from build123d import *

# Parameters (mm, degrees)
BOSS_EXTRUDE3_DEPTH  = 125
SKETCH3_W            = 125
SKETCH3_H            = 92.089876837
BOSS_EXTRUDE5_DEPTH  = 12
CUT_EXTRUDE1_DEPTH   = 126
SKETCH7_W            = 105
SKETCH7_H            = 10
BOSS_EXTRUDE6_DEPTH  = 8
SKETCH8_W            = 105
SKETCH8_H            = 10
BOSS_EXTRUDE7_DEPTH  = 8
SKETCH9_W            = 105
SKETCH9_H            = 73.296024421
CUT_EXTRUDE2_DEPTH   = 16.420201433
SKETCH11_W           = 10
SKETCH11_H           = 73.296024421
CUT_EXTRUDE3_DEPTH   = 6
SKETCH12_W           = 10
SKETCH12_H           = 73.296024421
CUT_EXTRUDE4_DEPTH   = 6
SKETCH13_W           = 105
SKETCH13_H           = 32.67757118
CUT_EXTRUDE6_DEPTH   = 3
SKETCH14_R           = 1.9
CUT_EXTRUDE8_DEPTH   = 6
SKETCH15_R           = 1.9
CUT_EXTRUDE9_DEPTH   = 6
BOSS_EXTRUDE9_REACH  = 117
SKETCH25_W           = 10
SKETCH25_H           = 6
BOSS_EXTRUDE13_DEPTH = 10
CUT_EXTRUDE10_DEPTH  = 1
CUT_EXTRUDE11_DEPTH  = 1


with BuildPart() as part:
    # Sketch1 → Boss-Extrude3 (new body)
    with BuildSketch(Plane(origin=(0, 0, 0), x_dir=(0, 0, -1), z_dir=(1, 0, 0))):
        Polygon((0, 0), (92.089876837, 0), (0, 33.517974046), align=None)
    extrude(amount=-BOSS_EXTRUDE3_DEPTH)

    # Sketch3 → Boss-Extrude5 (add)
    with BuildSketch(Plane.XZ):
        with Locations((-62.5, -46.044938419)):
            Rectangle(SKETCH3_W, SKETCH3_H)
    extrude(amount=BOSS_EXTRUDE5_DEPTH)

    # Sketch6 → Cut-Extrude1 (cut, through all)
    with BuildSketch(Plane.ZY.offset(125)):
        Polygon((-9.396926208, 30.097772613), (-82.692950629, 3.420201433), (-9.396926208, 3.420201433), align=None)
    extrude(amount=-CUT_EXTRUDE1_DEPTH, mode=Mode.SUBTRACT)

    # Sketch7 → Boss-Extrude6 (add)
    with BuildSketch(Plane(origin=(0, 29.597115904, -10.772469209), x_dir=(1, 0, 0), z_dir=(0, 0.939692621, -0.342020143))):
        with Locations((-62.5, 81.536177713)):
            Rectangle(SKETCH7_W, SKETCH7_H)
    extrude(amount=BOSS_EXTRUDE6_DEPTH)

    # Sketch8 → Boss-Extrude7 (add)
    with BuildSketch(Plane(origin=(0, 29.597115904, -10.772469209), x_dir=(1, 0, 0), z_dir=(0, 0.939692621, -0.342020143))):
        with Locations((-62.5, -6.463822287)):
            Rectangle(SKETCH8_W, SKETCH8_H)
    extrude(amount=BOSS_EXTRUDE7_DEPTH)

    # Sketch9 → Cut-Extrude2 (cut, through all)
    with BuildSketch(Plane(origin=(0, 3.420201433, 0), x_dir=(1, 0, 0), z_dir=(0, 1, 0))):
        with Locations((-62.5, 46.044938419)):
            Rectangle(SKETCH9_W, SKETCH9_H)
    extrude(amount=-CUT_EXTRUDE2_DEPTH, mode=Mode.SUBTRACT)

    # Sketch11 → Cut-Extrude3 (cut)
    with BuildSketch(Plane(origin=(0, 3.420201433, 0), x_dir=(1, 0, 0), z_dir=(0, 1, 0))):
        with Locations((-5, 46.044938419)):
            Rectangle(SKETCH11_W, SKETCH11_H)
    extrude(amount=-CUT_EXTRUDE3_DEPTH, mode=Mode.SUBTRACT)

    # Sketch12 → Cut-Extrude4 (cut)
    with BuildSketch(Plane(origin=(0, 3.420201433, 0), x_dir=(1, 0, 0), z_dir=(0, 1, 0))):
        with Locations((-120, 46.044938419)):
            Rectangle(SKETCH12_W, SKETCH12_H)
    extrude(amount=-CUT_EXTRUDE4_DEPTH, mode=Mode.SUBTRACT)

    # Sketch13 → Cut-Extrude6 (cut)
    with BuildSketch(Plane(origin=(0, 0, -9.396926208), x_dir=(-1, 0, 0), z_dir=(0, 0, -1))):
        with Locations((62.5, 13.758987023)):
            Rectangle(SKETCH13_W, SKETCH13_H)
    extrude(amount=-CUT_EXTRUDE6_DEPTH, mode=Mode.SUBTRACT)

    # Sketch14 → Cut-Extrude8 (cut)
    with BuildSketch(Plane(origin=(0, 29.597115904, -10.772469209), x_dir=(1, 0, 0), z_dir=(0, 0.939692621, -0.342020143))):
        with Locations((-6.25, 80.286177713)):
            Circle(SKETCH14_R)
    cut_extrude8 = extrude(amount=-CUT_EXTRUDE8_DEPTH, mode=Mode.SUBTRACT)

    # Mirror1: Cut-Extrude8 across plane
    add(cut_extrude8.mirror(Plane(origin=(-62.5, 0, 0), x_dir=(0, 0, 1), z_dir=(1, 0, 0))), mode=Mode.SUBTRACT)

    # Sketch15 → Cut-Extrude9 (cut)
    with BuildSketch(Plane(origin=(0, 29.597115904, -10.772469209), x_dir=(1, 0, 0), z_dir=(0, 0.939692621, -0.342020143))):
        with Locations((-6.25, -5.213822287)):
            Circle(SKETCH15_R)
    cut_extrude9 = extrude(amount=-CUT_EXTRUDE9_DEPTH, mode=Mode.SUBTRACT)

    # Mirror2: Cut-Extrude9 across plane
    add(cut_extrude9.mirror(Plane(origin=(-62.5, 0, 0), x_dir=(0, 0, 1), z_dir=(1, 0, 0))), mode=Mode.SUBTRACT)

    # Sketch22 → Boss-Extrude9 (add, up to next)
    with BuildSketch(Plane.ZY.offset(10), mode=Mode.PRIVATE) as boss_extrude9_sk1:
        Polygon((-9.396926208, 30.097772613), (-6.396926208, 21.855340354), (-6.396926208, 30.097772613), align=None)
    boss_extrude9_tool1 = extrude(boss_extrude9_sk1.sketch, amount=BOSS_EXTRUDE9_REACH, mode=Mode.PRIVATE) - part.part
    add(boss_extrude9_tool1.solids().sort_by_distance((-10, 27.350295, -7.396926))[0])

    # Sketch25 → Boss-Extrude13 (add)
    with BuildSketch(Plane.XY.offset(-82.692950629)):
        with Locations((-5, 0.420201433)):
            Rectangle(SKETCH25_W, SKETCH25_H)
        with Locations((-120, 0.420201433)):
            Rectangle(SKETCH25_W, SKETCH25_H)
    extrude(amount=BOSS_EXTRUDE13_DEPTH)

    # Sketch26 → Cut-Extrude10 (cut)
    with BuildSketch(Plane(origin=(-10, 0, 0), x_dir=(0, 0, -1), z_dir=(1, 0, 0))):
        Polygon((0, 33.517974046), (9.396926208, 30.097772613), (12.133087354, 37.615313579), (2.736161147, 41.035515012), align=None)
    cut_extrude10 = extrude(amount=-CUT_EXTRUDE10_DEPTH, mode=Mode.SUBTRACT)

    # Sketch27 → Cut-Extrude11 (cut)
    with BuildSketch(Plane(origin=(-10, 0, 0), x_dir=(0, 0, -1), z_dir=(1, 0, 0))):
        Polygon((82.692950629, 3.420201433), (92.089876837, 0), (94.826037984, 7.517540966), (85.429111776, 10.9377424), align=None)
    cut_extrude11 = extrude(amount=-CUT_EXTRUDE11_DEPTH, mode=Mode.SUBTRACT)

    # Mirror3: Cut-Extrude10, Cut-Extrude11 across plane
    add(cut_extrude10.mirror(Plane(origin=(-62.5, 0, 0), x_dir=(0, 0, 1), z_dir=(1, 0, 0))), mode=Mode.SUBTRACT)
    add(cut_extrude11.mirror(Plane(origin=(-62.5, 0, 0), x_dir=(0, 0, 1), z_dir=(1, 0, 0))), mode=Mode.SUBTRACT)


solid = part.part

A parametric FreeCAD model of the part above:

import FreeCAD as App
import Part
import Sketcher
from FreeCAD import Vector
Q = App.Units.Quantity

doc = App.newDocument("Part")
params = doc.addObject("Spreadsheet::Sheet", "Params")
for row, (alias, value) in enumerate([
    ("sketch1_length", "98 mm"),
    ("pad1_length", "125 mm"),
    ("sketch2_width", "125 mm"),
    ("pad2_length", "12 mm"),
    ("sketch3_length", "78 mm"),
    ("sketch4_width", "105 mm"),
    ("sketch4_height", "10 mm"),
    ("pad3_length", "8 mm"),
    ("sketch5_width", "105 mm"),
    ("sketch5_height", "10 mm"),
    ("pad4_length", "8 mm"),
    ("sketch6_width", "105 mm"),
    ("sketch7_width", "10 mm"),
    ("pocket3_length", "6 mm"),
    ("sketch8_width", "10 mm"),
    ("pocket4_length", "6 mm"),
    ("sketch9_width", "105 mm"),
    ("pocket5_length", "3 mm"),
    ("sketch10_diameter", "3.8 mm"),
    ("pocket6_length", "6 mm"),
    ("sketch11_diameter", "3.8 mm"),
    ("pocket7_length", "6 mm"),
    ("sketch12_height", "3 mm"),
    ("sketch13_width", "10 mm"),
    ("sketch13_height", "6 mm"),
    ("pad6_length", "10 mm"),
    ("sketch14_length", "10 mm"),
    ("sketch14_length2", "8 mm"),
    ("pocket8_length", "1 mm"),
    ("sketch15_length", "10 mm"),
    ("sketch15_length2", "8 mm"),
    ("pocket9_length", "1 mm"),
], start=1):
    params.set(f"A{row}", alias)
    params.set(f"B{row}", "=" + value)
    params.setAlias(f"B{row}", alias)

body = doc.addObject("PartDesign::Body", "Body")

# Sketch on YZ plane
sketch1 = body.newObject("Sketcher::SketchObject", "Sketch")
sketch1.AttachmentSupport = (doc.getObject("YZ_Plane"), [""])
sketch1.MapMode = "FlatFace"
sketch1.addGeometry([
    Part.LineSegment(Vector(0, 0, 0), Vector(0, -92.089877, 0)),
    Part.LineSegment(Vector(0, -92.089877, 0), Vector(33.517974, 0, 0)),
    Part.LineSegment(Vector(33.517974, 0, 0), Vector(0, 0, 0)),
], False)
sketch1.addConstraint([
    Sketcher.Constraint("Coincident", 0, 2, 1, 1),
    Sketcher.Constraint("Coincident", 1, 2, 2, 1),
    Sketcher.Constraint("Coincident", 2, 2, 0, 1),
    Sketcher.Constraint("Vertical", 0),
    Sketcher.Constraint("Horizontal", 2),
    Sketcher.Constraint("Coincident", 2, 2, -1, 1),
    Sketcher.Constraint("Angle", 1, Q("70 deg")),
    Sketcher.Constraint("Distance", 1, 98.0),
])
sketch1.setExpression("Constraints[7]", "Params.sketch1_length")
pad1 = body.newObject("PartDesign::Pad", "Pad")
pad1.Profile = sketch1
pad1.setExpression("Length", "Params.pad1_length")
pad1.Reversed = True

# Sketch on XZ plane
sketch2 = body.newObject("Sketcher::SketchObject", "Sketch001")
sketch2.AttachmentSupport = (doc.getObject("XZ_Plane"), [""])
sketch2.MapMode = "FlatFace"
sketch2.addGeometry([
    Part.LineSegment(Vector(-125, 0, 0), Vector(-125, -92.089877, 0)),
    Part.LineSegment(Vector(-125, -92.089877, 0), Vector(0, -92.089877, 0)),
    Part.LineSegment(Vector(0, -92.089877, 0), Vector(0, 0, 0)),
    Part.LineSegment(Vector(0, 0, 0), Vector(-125, 0, 0)),
], False)
sketch2.addConstraint([
    Sketcher.Constraint("Coincident", 0, 2, 1, 1),
    Sketcher.Constraint("Coincident", 1, 2, 2, 1),
    Sketcher.Constraint("Coincident", 2, 2, 3, 1),
    Sketcher.Constraint("Coincident", 3, 2, 0, 1),
    Sketcher.Constraint("Vertical", 0),
    Sketcher.Constraint("Horizontal", 1),
    Sketcher.Constraint("Vertical", 2),
    Sketcher.Constraint("Horizontal", 3),
    Sketcher.Constraint("Coincident", 2, 2, -1, 1),
    Sketcher.Constraint("DistanceX", 1, 1, 1, 2, 125.0),
    Sketcher.Constraint("DistanceY", 0, 2, 0, 1, 92.089877),
])
sketch2.setExpression("Constraints[9]", "Params.sketch2_width")
pad2 = body.newObject("PartDesign::Pad", "Pad001")
pad2.Profile = sketch2
pad2.setExpression("Length", "Params.pad2_length")

# Sketch on YZ plane
sketch3 = body.newObject("Sketcher::SketchObject", "Sketch002")
sketch3.AttachmentSupport = (doc.getObject("YZ_Plane"), [""])
sketch3.MapMode = "FlatFace"
sketch3.AttachmentOffset = App.Placement(Vector(0, 0, -125), App.Rotation())
sketch3.addGeometry([
    Part.LineSegment(Vector(30.097773, -9.396926, 0), Vector(3.420201, -82.692951, 0)),
    Part.LineSegment(Vector(3.420201, -82.692951, 0), Vector(3.420201, -9.396926, 0)),
    Part.LineSegment(Vector(3.420201, -9.396926, 0), Vector(30.097773, -9.396926, 0)),
], False)
sketch3.addConstraint([
    Sketcher.Constraint("Coincident", 0, 2, 1, 1),
    Sketcher.Constraint("Coincident", 1, 2, 2, 1),
    Sketcher.Constraint("Coincident", 2, 2, 0, 1),
    Sketcher.Constraint("Vertical", 1),
    Sketcher.Constraint("Horizontal", 2),
    Sketcher.Constraint("Angle", 0, Q("-110 deg")),
    Sketcher.Constraint("Distance", 0, 78.0),
    Sketcher.Constraint("DistanceX", -1, 1, 0, 2, 3.420201),
    Sketcher.Constraint("DistanceY", 0, 2, -1, 1, 82.692951),
])
sketch3.setExpression("Constraints[6]", "Params.sketch3_length")
pocket1 = body.newObject("PartDesign::Pocket", "Pocket")
pocket1.Profile = sketch3
pocket1.Type = "ThroughAll"
pocket1.Reversed = True

# Sketch on an angled plane
sketch4 = body.newObject("Sketcher::SketchObject", "Sketch003")
sketch4.Placement = App.Placement(Vector(0, 29.597116, -10.772469), App.Rotation(Vector(1, 0, 0), Vector(0, -0.342020143, -0.939692621), Vector(0, 0.939692621, -0.342020143), "ZXY"))
sketch4.addGeometry([
    Part.LineSegment(Vector(-115, 86.536178, 0), Vector(-115, 76.536178, 0)),
    Part.LineSegment(Vector(-115, 76.536178, 0), Vector(-10, 76.536178, 0)),
    Part.LineSegment(Vector(-10, 76.536178, 0), Vector(-10, 86.536178, 0)),
    Part.LineSegment(Vector(-10, 86.536178, 0), Vector(-115, 86.536178, 0)),
], False)
sketch4.addConstraint([
    Sketcher.Constraint("Coincident", 0, 2, 1, 1),
    Sketcher.Constraint("Coincident", 1, 2, 2, 1),
    Sketcher.Constraint("Coincident", 2, 2, 3, 1),
    Sketcher.Constraint("Coincident", 3, 2, 0, 1),
    Sketcher.Constraint("Vertical", 0),
    Sketcher.Constraint("Horizontal", 1),
    Sketcher.Constraint("Vertical", 2),
    Sketcher.Constraint("Horizontal", 3),
    Sketcher.Constraint("DistanceX", 1, 1, 1, 2, 105.0),
    Sketcher.Constraint("DistanceY", 0, 2, 0, 1, 10.0),
    Sketcher.Constraint("DistanceX", 0, 2, -1, 1, 115.0),
    Sketcher.Constraint("DistanceY", -1, 1, 0, 2, 76.536178),
])
sketch4.setExpression("Constraints[8]", "Params.sketch4_width")
sketch4.setExpression("Constraints[9]", "Params.sketch4_height")
pad3 = body.newObject("PartDesign::Pad", "Pad002")
pad3.Profile = sketch4
pad3.setExpression("Length", "Params.pad3_length")

# Sketch on an angled plane
sketch5 = body.newObject("Sketcher::SketchObject", "Sketch004")
sketch5.Placement = App.Placement(Vector(0, 29.597116, -10.772469), App.Rotation(Vector(1, 0, 0), Vector(0, -0.342020143, -0.939692621), Vector(0, 0.939692621, -0.342020143), "ZXY"))
sketch5.addGeometry([
    Part.LineSegment(Vector(-115, -1.463822, 0), Vector(-115, -11.463822, 0)),
    Part.LineSegment(Vector(-115, -11.463822, 0), Vector(-10, -11.463822, 0)),
    Part.LineSegment(Vector(-10, -11.463822, 0), Vector(-10, -1.463822, 0)),
    Part.LineSegment(Vector(-10, -1.463822, 0), Vector(-115, -1.463822, 0)),
], False)
sketch5.addConstraint([
    Sketcher.Constraint("Coincident", 0, 2, 1, 1),
    Sketcher.Constraint("Coincident", 1, 2, 2, 1),
    Sketcher.Constraint("Coincident", 2, 2, 3, 1),
    Sketcher.Constraint("Coincident", 3, 2, 0, 1),
    Sketcher.Constraint("Vertical", 0),
    Sketcher.Constraint("Horizontal", 1),
    Sketcher.Constraint("Vertical", 2),
    Sketcher.Constraint("Horizontal", 3),
    Sketcher.Constraint("DistanceX", 1, 1, 1, 2, 105.0),
    Sketcher.Constraint("DistanceY", 0, 2, 0, 1, 10.0),
    Sketcher.Constraint("DistanceX", 0, 2, -1, 1, 115.0),
    Sketcher.Constraint("DistanceY", 0, 2, -1, 1, 11.463822),
])
sketch5.setExpression("Constraints[8]", "Params.sketch5_width")
sketch5.setExpression("Constraints[9]", "Params.sketch5_height")
pad4 = body.newObject("PartDesign::Pad", "Pad003")
pad4.Profile = sketch5
pad4.setExpression("Length", "Params.pad4_length")

# Sketch on XZ plane
sketch6 = body.newObject("Sketcher::SketchObject", "Sketch005")
sketch6.AttachmentSupport = (doc.getObject("XZ_Plane"), [""])
sketch6.MapMode = "FlatFace"
sketch6.AttachmentOffset = App.Placement(Vector(0, 0, -3.420201), App.Rotation())
sketch6.addGeometry([
    Part.LineSegment(Vector(-115, -82.692951, 0), Vector(-115, -9.396926, 0)),
    Part.LineSegment(Vector(-115, -9.396926, 0), Vector(-10, -9.396926, 0)),
    Part.LineSegment(Vector(-10, -9.396926, 0), Vector(-10, -82.692951, 0)),
    Part.LineSegment(Vector(-10, -82.692951, 0), Vector(-115, -82.692951, 0)),
], False)
sketch6.addConstraint([
    Sketcher.Constraint("Coincident", 0, 2, 1, 1),
    Sketcher.Constraint("Coincident", 1, 2, 2, 1),
    Sketcher.Constraint("Coincident", 2, 2, 3, 1),
    Sketcher.Constraint("Coincident", 3, 2, 0, 1),
    Sketcher.Constraint("Vertical", 0),
    Sketcher.Constraint("Horizontal", 1),
    Sketcher.Constraint("Vertical", 2),
    Sketcher.Constraint("Horizontal", 3),
    Sketcher.Constraint("DistanceX", 1, 1, 1, 2, 105.0),
    Sketcher.Constraint("DistanceX", 0, 2, -1, 1, 115.0),
    Sketcher.Constraint("DistanceY", 0, 1, 0, 2, 73.296024),
    Sketcher.Constraint("DistanceY", 2, 2, -1, 1, 82.692951),
])
sketch6.setExpression("Constraints[8]", "Params.sketch6_width")
pocket2 = body.newObject("PartDesign::Pocket", "Pocket001")
pocket2.Profile = sketch6
pocket2.Type = "ThroughAll"
pocket2.Reversed = True

# Sketch on XZ plane
sketch7 = body.newObject("Sketcher::SketchObject", "Sketch006")
sketch7.AttachmentSupport = (doc.getObject("XZ_Plane"), [""])
sketch7.MapMode = "FlatFace"
sketch7.AttachmentOffset = App.Placement(Vector(0, 0, -3.420201), App.Rotation())
sketch7.addGeometry([
    Part.LineSegment(Vector(-10, -82.692951, 0), Vector(-10, -9.396926, 0)),
    Part.LineSegment(Vector(-10, -9.396926, 0), Vector(0, -9.396926, 0)),
    Part.LineSegment(Vector(0, -9.396926, 0), Vector(0, -82.692951, 0)),
    Part.LineSegment(Vector(0, -82.692951, 0), Vector(-10, -82.692951, 0)),
], False)
sketch7.addConstraint([
    Sketcher.Constraint("Coincident", 0, 2, 1, 1),
    Sketcher.Constraint("Coincident", 1, 2, 2, 1),
    Sketcher.Constraint("Coincident", 2, 2, 3, 1),
    Sketcher.Constraint("Coincident", 3, 2, 0, 1),
    Sketcher.Constraint("Vertical", 0),
    Sketcher.Constraint("Horizontal", 1),
    Sketcher.Constraint("Vertical", 2),
    Sketcher.Constraint("Horizontal", 3),
    Sketcher.Constraint("PointOnObject", 1, 2, -2),
    Sketcher.Constraint("DistanceX", 1, 1, 1, 2, 10.0),
    Sketcher.Constraint("DistanceY", 0, 1, 0, 2, 73.296024),
    Sketcher.Constraint("DistanceY", 2, 2, -1, 1, 82.692951),
])
sketch7.setExpression("Constraints[9]", "Params.sketch7_width")
pocket3 = body.newObject("PartDesign::Pocket", "Pocket002")
pocket3.Profile = sketch7
pocket3.setExpression("Length", "Params.pocket3_length")
pocket3.Reversed = True

# Sketch on XZ plane
sketch8 = body.newObject("Sketcher::SketchObject", "Sketch007")
sketch8.AttachmentSupport = (doc.getObject("XZ_Plane"), [""])
sketch8.MapMode = "FlatFace"
sketch8.AttachmentOffset = App.Placement(Vector(0, 0, -3.420201), App.Rotation())
sketch8.addGeometry([
    Part.LineSegment(Vector(-125, -82.692951, 0), Vector(-125, -9.396926, 0)),
    Part.LineSegment(Vector(-125, -9.396926, 0), Vector(-115, -9.396926, 0)),
    Part.LineSegment(Vector(-115, -9.396926, 0), Vector(-115, -82.692951, 0)),
    Part.LineSegment(Vector(-115, -82.692951, 0), Vector(-125, -82.692951, 0)),
], False)
sketch8.addConstraint([
    Sketcher.Constraint("Coincident", 0, 2, 1, 1),
    Sketcher.Constraint("Coincident", 1, 2, 2, 1),
    Sketcher.Constraint("Coincident", 2, 2, 3, 1),
    Sketcher.Constraint("Coincident", 3, 2, 0, 1),
    Sketcher.Constraint("Vertical", 0),
    Sketcher.Constraint("Horizontal", 1),
    Sketcher.Constraint("Vertical", 2),
    Sketcher.Constraint("Horizontal", 3),
    Sketcher.Constraint("DistanceX", 1, 1, 1, 2, 10.0),
    Sketcher.Constraint("DistanceX", 0, 2, -1, 1, 125.0),
    Sketcher.Constraint("DistanceY", 0, 1, 0, 2, 73.296024),
    Sketcher.Constraint("DistanceY", 2, 2, -1, 1, 82.692951),
])
sketch8.setExpression("Constraints[8]", "Params.sketch8_width")
pocket4 = body.newObject("PartDesign::Pocket", "Pocket003")
pocket4.Profile = sketch8
pocket4.setExpression("Length", "Params.pocket4_length")
pocket4.Reversed = True

# Sketch on XY plane
sketch9 = body.newObject("Sketcher::SketchObject", "Sketch008")
sketch9.AttachmentSupport = (doc.getObject("XY_Plane"), [""])
sketch9.MapMode = "FlatFace"
sketch9.AttachmentOffset = App.Placement(Vector(0, 0, -9.396926), App.Rotation())
sketch9.addGeometry([
    Part.LineSegment(Vector(-10, 30.097773, 0), Vector(-10, -2.579799, 0)),
    Part.LineSegment(Vector(-10, -2.579799, 0), Vector(-115, -2.579799, 0)),
    Part.LineSegment(Vector(-115, -2.579799, 0), Vector(-115, 30.097773, 0)),
    Part.LineSegment(Vector(-115, 30.097773, 0), Vector(-10, 30.097773, 0)),
], False)
sketch9.addConstraint([
    Sketcher.Constraint("Coincident", 0, 2, 1, 1),
    Sketcher.Constraint("Coincident", 1, 2, 2, 1),
    Sketcher.Constraint("Coincident", 2, 2, 3, 1),
    Sketcher.Constraint("Coincident", 3, 2, 0, 1),
    Sketcher.Constraint("Vertical", 0),
    Sketcher.Constraint("Horizontal", 1),
    Sketcher.Constraint("Vertical", 2),
    Sketcher.Constraint("Horizontal", 3),
    Sketcher.Constraint("DistanceX", 1, 2, 1, 1, 105.0),
    Sketcher.Constraint("DistanceX", 0, 2, -1, 1, 10.0),
    Sketcher.Constraint("DistanceY", 0, 2, 0, 1, 32.677571),
    Sketcher.Constraint("DistanceY", 0, 2, -1, 1, 2.579799),
])
sketch9.setExpression("Constraints[8]", "Params.sketch9_width")
pocket5 = body.newObject("PartDesign::Pocket", "Pocket004")
pocket5.Profile = sketch9
pocket5.setExpression("Length", "Params.pocket5_length")
pocket5.Reversed = True

# Sketch on an angled plane
sketch10 = body.newObject("Sketcher::SketchObject", "Sketch009")
sketch10.Placement = App.Placement(Vector(0, 29.597116, -10.772469), App.Rotation(Vector(1, 0, 0), Vector(0, -0.342020143, -0.939692621), Vector(0, 0.939692621, -0.342020143), "ZXY"))
sketch10.addGeometry(Part.Circle(Vector(-6.25, 80.286178, 0), Vector(0, 0, 1), 1.9), False)
sketch10.addConstraint([
    Sketcher.Constraint("Diameter", 0, 3.8),
    Sketcher.Constraint("DistanceX", 0, 3, -1, 1, 6.25),
    Sketcher.Constraint("DistanceY", -1, 1, 0, 3, 80.286178),
])
sketch10.setExpression("Constraints[0]", "Params.sketch10_diameter")
pocket6 = body.newObject("PartDesign::Pocket", "Pocket005")
pocket6.Profile = sketch10
pocket6.setExpression("Length", "Params.pocket6_length")
doc.recompute()

datumplane = body.newObject("PartDesign::Plane", "DatumPlane")
datumplane.AttachmentSupport = (doc.getObject("YZ_Plane"), [""])
datumplane.MapMode = "FlatFace"
datumplane.AttachmentOffset = App.Placement(Vector(0, 0, -62.5), App.Rotation())
mirrored = body.newObject("PartDesign::Mirrored", "Mirrored")
mirrored.Originals = [pocket6]
mirrored.MirrorPlane = (datumplane, [""])
body.Tip = mirrored

# Sketch on an angled plane
sketch11 = body.newObject("Sketcher::SketchObject", "Sketch010")
sketch11.Placement = App.Placement(Vector(0, 29.597116, -10.772469), App.Rotation(Vector(1, 0, 0), Vector(0, -0.342020143, -0.939692621), Vector(0, 0.939692621, -0.342020143), "ZXY"))
sketch11.addGeometry(Part.Circle(Vector(-6.25, -5.213822, 0), Vector(0, 0, 1), 1.9), False)
sketch11.addConstraint([
    Sketcher.Constraint("Diameter", 0, 3.8),
    Sketcher.Constraint("DistanceX", 0, 3, -1, 1, 6.25),
    Sketcher.Constraint("DistanceY", 0, 3, -1, 1, 5.213822),
])
sketch11.setExpression("Constraints[0]", "Params.sketch11_diameter")
pocket7 = body.newObject("PartDesign::Pocket", "Pocket006")
pocket7.Profile = sketch11
pocket7.setExpression("Length", "Params.pocket7_length")
doc.recompute()

datumplane2 = body.newObject("PartDesign::Plane", "DatumPlane001")
datumplane2.AttachmentSupport = (doc.getObject("YZ_Plane"), [""])
datumplane2.MapMode = "FlatFace"
datumplane2.AttachmentOffset = App.Placement(Vector(0, 0, -62.5), App.Rotation())
mirrored2 = body.newObject("PartDesign::Mirrored", "Mirrored001")
mirrored2.Originals = [pocket7]
mirrored2.MirrorPlane = (datumplane2, [""])
body.Tip = mirrored2

# Sketch on YZ plane
sketch12 = body.newObject("Sketcher::SketchObject", "Sketch011")
sketch12.AttachmentSupport = (doc.getObject("YZ_Plane"), [""])
sketch12.MapMode = "FlatFace"
sketch12.AttachmentOffset = App.Placement(Vector(0, 0, -10), App.Rotation())
sketch12.addGeometry([
    Part.LineSegment(Vector(30.097773, -9.396926, 0), Vector(21.85534, -6.396926, 0)),
    Part.LineSegment(Vector(21.85534, -6.396926, 0), Vector(30.097773, -6.396926, 0)),
    Part.LineSegment(Vector(30.097773, -6.396926, 0), Vector(30.097773, -9.396926, 0)),
], False)
sketch12.addConstraint([
    Sketcher.Constraint("Coincident", 0, 2, 1, 1),
    Sketcher.Constraint("Coincident", 1, 2, 2, 1),
    Sketcher.Constraint("Coincident", 2, 2, 0, 1),
    Sketcher.Constraint("Horizontal", 1),
    Sketcher.Constraint("Vertical", 2),
    Sketcher.Constraint("DistanceY", 2, 2, 2, 1, 3.0),
    Sketcher.Constraint("Angle", 0, Q("160 deg")),
    Sketcher.Constraint("DistanceX", -1, 1, 0, 2, 21.85534),
    Sketcher.Constraint("DistanceY", 0, 2, -1, 1, 6.396926),
])
sketch12.setExpression("Constraints[5]", "Params.sketch12_height")
pad5 = body.newObject("PartDesign::Pad", "Pad004")
pad5.Profile = sketch12
pad5.Type = "UpToFirst"
pad5.Reversed = True

# Sketch on XY plane
sketch13 = body.newObject("Sketcher::SketchObject", "Sketch012")
sketch13.AttachmentSupport = (doc.getObject("XY_Plane"), [""])
sketch13.MapMode = "FlatFace"
sketch13.AttachmentOffset = App.Placement(Vector(0, 0, -82.692951), App.Rotation())
sketch13.addGeometry([
    Part.LineSegment(Vector(-10, 3.420201, 0), Vector(-10, -2.579799, 0)),  # 0
    Part.LineSegment(Vector(-10, -2.579799, 0), Vector(0, -2.579799, 0)),  # 1
    Part.LineSegment(Vector(0, -2.579799, 0), Vector(0, 3.420201, 0)),  # 2
    Part.LineSegment(Vector(0, 3.420201, 0), Vector(-10, 3.420201, 0)),  # 3
    Part.LineSegment(Vector(-125, 3.420201, 0), Vector(-125, -2.579799, 0)),  # 4
    Part.LineSegment(Vector(-125, -2.579799, 0), Vector(-115, -2.579799, 0)),  # 5
    Part.LineSegment(Vector(-115, -2.579799, 0), Vector(-115, 3.420201, 0)),  # 6
    Part.LineSegment(Vector(-115, 3.420201, 0), Vector(-125, 3.420201, 0)),  # 7
], False)
sketch13.addConstraint([
    Sketcher.Constraint("Coincident", 0, 2, 1, 1),
    Sketcher.Constraint("Coincident", 1, 2, 2, 1),
    Sketcher.Constraint("Coincident", 2, 2, 3, 1),
    Sketcher.Constraint("Coincident", 3, 2, 0, 1),
    Sketcher.Constraint("Coincident", 4, 2, 5, 1),
    Sketcher.Constraint("Coincident", 5, 2, 6, 1),
    Sketcher.Constraint("Coincident", 6, 2, 7, 1),
    Sketcher.Constraint("Coincident", 7, 2, 4, 1),
    Sketcher.Constraint("Vertical", 0),
    Sketcher.Constraint("Horizontal", 1),
    Sketcher.Constraint("Vertical", 2),
    Sketcher.Constraint("Horizontal", 3),
    Sketcher.Constraint("Vertical", 4),
    Sketcher.Constraint("Horizontal", 5),
    Sketcher.Constraint("Vertical", 6),
    Sketcher.Constraint("Horizontal", 7),
    Sketcher.Constraint("PointOnObject", 1, 2, -2),
    Sketcher.Constraint("Horizontal", 1, 2, 4, 2),
    Sketcher.Constraint("Horizontal", 3, 2, 6, 2),
    Sketcher.Constraint("Equal", 3, 5),
    Sketcher.Constraint("DistanceX", 1, 1, 1, 2, 10.0),
    Sketcher.Constraint("DistanceY", 0, 2, 0, 1, 6.0),
    Sketcher.Constraint("DistanceX", 4, 2, -1, 1, 125.0),
    Sketcher.Constraint("DistanceY", 0, 2, -1, 1, 2.579799),
])
sketch13.setExpression("Constraints[20]", "Params.sketch13_width")
sketch13.setExpression("Constraints[21]", "Params.sketch13_height")
pad6 = body.newObject("PartDesign::Pad", "Pad005")
pad6.Profile = sketch13
pad6.setExpression("Length", "Params.pad6_length")

# Sketch on YZ plane
sketch14 = body.newObject("Sketcher::SketchObject", "Sketch013")
sketch14.AttachmentSupport = (doc.getObject("YZ_Plane"), [""])
sketch14.MapMode = "FlatFace"
sketch14.AttachmentOffset = App.Placement(Vector(0, 0, -10), App.Rotation())
sketch14.addGeometry([
    Part.LineSegment(Vector(33.517974, 0, 0), Vector(30.097773, -9.396926, 0)),
    Part.LineSegment(Vector(30.097773, -9.396926, 0), Vector(37.615314, -12.133087, 0)),
    Part.LineSegment(Vector(37.615314, -12.133087, 0), Vector(41.035515, -2.736161, 0)),
    Part.LineSegment(Vector(41.035515, -2.736161, 0), Vector(33.517974, 0, 0)),
], False)
sketch14.addConstraint([
    Sketcher.Constraint("Coincident", 0, 2, 1, 1),
    Sketcher.Constraint("Coincident", 1, 2, 2, 1),
    Sketcher.Constraint("Coincident", 2, 2, 3, 1),
    Sketcher.Constraint("Coincident", 3, 2, 0, 1),
    Sketcher.Constraint("PointOnObject", 3, 2, -1),
    Sketcher.Constraint("Perpendicular", 0, 1),
    Sketcher.Constraint("Perpendicular", 1, 2),
    Sketcher.Constraint("Perpendicular", 2, 3),
    Sketcher.Constraint("Angle", 0, Q("-110 deg")),
    Sketcher.Constraint("Distance", 0, 10.0),
    Sketcher.Constraint("Distance", 1, 8.0),
    Sketcher.Constraint("DistanceX", -1, 1, 0, 2, 30.097773),
])
sketch14.setExpression("Constraints[9]", "Params.sketch14_length")
sketch14.setExpression("Constraints[10]", "Params.sketch14_length2")
pocket8 = body.newObject("PartDesign::Pocket", "Pocket007")
pocket8.Profile = sketch14
pocket8.setExpression("Length", "Params.pocket8_length")

# Sketch on YZ plane
sketch15 = body.newObject("Sketcher::SketchObject", "Sketch014")
sketch15.AttachmentSupport = (doc.getObject("YZ_Plane"), [""])
sketch15.MapMode = "FlatFace"
sketch15.AttachmentOffset = App.Placement(Vector(0, 0, -10), App.Rotation())
sketch15.addGeometry([
    Part.LineSegment(Vector(3.420201, -82.692951, 0), Vector(0, -92.089877, 0)),
    Part.LineSegment(Vector(0, -92.089877, 0), Vector(7.517541, -94.826038, 0)),
    Part.LineSegment(Vector(7.517541, -94.826038, 0), Vector(10.937742, -85.429112, 0)),
    Part.LineSegment(Vector(10.937742, -85.429112, 0), Vector(3.420201, -82.692951, 0)),
], False)
sketch15.addConstraint([
    Sketcher.Constraint("Coincident", 0, 2, 1, 1),
    Sketcher.Constraint("Coincident", 1, 2, 2, 1),
    Sketcher.Constraint("Coincident", 2, 2, 3, 1),
    Sketcher.Constraint("Coincident", 3, 2, 0, 1),
    Sketcher.Constraint("PointOnObject", 0, 2, -2),
    Sketcher.Constraint("Perpendicular", 0, 1),
    Sketcher.Constraint("Perpendicular", 1, 2),
    Sketcher.Constraint("Perpendicular", 2, 3),
    Sketcher.Constraint("Angle", 0, Q("-110 deg")),
    Sketcher.Constraint("Distance", 0, 10.0),
    Sketcher.Constraint("Distance", 1, 8.0),
    Sketcher.Constraint("DistanceY", 2, 2, -1, 1, 85.429112),
])
sketch15.setExpression("Constraints[9]", "Params.sketch15_length")
sketch15.setExpression("Constraints[10]", "Params.sketch15_length2")
pocket9 = body.newObject("PartDesign::Pocket", "Pocket008")
pocket9.Profile = sketch15
pocket9.setExpression("Length", "Params.pocket9_length")
doc.recompute()

datumplane3 = body.newObject("PartDesign::Plane", "DatumPlane002")
datumplane3.AttachmentSupport = (doc.getObject("YZ_Plane"), [""])
datumplane3.MapMode = "FlatFace"
datumplane3.AttachmentOffset = App.Placement(Vector(0, 0, -62.5), App.Rotation())
mirrored3 = body.newObject("PartDesign::Mirrored", "Mirrored002")
mirrored3.Originals = [pocket8, pocket9]
mirrored3.MirrorPlane = (datumplane3, [""])
body.Tip = mirrored3

doc.recompute()
